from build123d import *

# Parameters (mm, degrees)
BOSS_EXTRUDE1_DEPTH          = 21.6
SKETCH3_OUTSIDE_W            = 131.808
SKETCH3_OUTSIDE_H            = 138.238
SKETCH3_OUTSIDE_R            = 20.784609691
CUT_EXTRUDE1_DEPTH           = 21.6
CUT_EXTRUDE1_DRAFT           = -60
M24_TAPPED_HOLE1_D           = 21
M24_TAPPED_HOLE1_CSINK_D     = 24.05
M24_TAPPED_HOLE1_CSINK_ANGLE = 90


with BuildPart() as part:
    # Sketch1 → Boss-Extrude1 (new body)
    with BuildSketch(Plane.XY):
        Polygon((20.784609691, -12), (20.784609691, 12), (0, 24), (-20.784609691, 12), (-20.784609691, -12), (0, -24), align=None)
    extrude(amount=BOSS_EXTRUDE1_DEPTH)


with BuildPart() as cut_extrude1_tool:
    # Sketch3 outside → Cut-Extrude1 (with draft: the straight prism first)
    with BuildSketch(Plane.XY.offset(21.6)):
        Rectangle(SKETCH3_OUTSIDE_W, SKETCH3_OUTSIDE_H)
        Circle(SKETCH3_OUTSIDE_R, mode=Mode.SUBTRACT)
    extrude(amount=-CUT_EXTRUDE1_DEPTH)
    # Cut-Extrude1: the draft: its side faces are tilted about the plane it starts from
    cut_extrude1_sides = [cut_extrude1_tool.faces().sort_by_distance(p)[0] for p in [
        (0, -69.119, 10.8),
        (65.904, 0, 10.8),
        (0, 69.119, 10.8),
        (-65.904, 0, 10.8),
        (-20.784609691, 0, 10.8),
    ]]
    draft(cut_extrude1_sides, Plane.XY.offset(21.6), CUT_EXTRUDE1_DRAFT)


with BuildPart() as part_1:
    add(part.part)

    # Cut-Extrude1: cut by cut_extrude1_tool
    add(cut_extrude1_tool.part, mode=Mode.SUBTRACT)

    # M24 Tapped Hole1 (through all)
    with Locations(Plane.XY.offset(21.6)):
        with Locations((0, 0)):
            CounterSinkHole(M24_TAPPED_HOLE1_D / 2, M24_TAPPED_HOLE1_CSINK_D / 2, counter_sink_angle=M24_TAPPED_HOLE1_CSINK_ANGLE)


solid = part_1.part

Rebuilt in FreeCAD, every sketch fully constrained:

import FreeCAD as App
import Part
import Sketcher
from FreeCAD import Vector
Q = App.Units.Quantity


def faces_at(feature, points):
    """Names of the faces that lie closest to the given points."""
    faces = feature.Shape.Faces
    near = lambda p: min(range(len(faces)), key=lambda i: faces[i].distToShape(Part.Vertex(*p))[0])
    return sorted({f"Face{near(p) + 1}" for p in points})

doc = App.newDocument("Part")
params = doc.addObject("Spreadsheet::Sheet", "Params")
for row, (alias, value) in enumerate([
    ("sketch1_height", "24 mm"),
    ("sketch1_length", "24 mm"),
    ("pad1_length", "21.6 mm"),
    ("pad2_length", "21.6 mm"),
    ("draft_angle", "60 deg"),
    ("sketch3_diameter", "21 mm"),
    ("hole_diameter", "21 mm"),
    ("hole_csink_diameter", "24.05 mm"),
], start=1):
    params.set(f"A{row}", alias)
    params.set(f"B{row}", "=" + value)
    params.setAlias(f"B{row}", alias)

body = doc.addObject("PartDesign::Body", "Body")

# Sketch on XY plane
sketch1 = doc.addObject("Sketcher::SketchObject", "Sketch")
body.addObject(sketch1)
sketch1.AttachmentSupport = (doc.XY_Plane, [""])
sketch1.MapMode = "FlatFace"
sketch1.addGeometry([
    Part.LineSegment(Vector(21, -12, 0), Vector(21, 12, 0)),  # 0
    Part.LineSegment(Vector(21, 12, 0), Vector(0, 24, 0)),  # 1
    Part.LineSegment(Vector(0, 24, 0), Vector(-21, 12, 0)),  # 2
    Part.LineSegment(Vector(-21, 12, 0), Vector(-21, -12, 0)),  # 3
    Part.LineSegment(Vector(-21, -12, 0), Vector(0, -24, 0)),  # 4
    Part.LineSegment(Vector(0, -24, 0), Vector(21, -12, 0)),  # 5
], False)
sketch1.addConstraint([
    Sketcher.Constraint("Coincident", 0, 2, 1, 1),
    Sketcher.Constraint("Coincident", 1, 2, 2, 1),
    Sketcher.Constraint("Coincident", 2, 2, 3, 1),
    Sketcher.Constraint("Coincident", 3, 2, 4, 1),
    Sketcher.Constraint("Coincident", 4, 2, 5, 1),
    Sketcher.Constraint("Coincident", 5, 2, 0, 1),
    Sketcher.Constraint("Vertical", 0),
    Sketcher.Constraint("Vertical", 3),
    Sketcher.Constraint("Symmetric", 0, 2, 3, 2, -1, 1),
    Sketcher.Constraint("Symmetric", 1, 2, 4, 2, -1, 1),
    Sketcher.Constraint("PointOnObject", 1, 2, -2),
    Sketcher.Constraint("Parallel", 2, 5),
    Sketcher.Constraint("Horizontal", 0, 2, 2, 2),
    Sketcher.Constraint("DistanceY", 0, 1, 0, 2, 24.0),
    Sketcher.Constraint("Angle", 1, Q("150 deg")),
    Sketcher.Constraint("Distance", 1, 24.0),
])
sketch1.setExpression("Constraints[13]", "Params.sketch1_height")
sketch1.setExpression("Constraints[15]", "Params.sketch1_length")
pad1 = doc.addObject("PartDesign::Pad", "Pad")
body.addObject(pad1)
pad1.Profile = sketch1
pad1.setExpression("Length", "Params.pad1_length")
body2 = doc.addObject("PartDesign::Body", "Body001")

# Sketch on XY plane
sketch2 = doc.addObject("Sketcher::SketchObject", "Sketch001")
body2.addObject(sketch2)
sketch2.AttachmentSupport = (doc.getObject("XY_Plane001"), [""])
sketch2.MapMode = "FlatFace"
sketch2.AttachmentOffset = App.Placement(Vector(0, 0, 21.6), App.Rotation())
sketch2.addGeometry([
    Part.LineSegment(Vector(-66, 69, 0), Vector(-66, -69, 0)),  # 0
    Part.LineSegment(Vector(-66, -69, 0), Vector(66, -69, 0)),  # 1
    Part.LineSegment(Vector(66, -69, 0), Vector(66, 69, 0)),  # 2
    Part.LineSegment(Vector(66, 69, 0), Vector(-66, 69, 0)),  # 3
    Part.Circle(Vector(0, 0, 0), Vector(0, 0, 1), 21),  # 4
], False)
sketch2.addConstraint([
    Sketcher.Constraint("Coincident", 0, 2, 1, 1),
    Sketcher.Constraint("Coincident", 1, 2, 2, 1),
    Sketcher.Constraint("Coincident", 2, 2, 3, 1),
    Sketcher.Constraint("Coincident", 3, 2, 0, 1),
    Sketcher.Constraint("Vertical", 0),
    Sketcher.Constraint("Horizontal", 1),
    Sketcher.Constraint("Vertical", 2),
    Sketcher.Constraint("Horizontal", 3),
    Sketcher.Constraint("Coincident", 4, 3, -1, 1),
    Sketcher.Constraint("Symmetric", 0, 2, 2, 2, -1, 1),
    Sketcher.Constraint("Diameter", 4, 41.569219),
    Sketcher.Constraint("DistanceX", 1, 1, 1, 2, 131.808),
    Sketcher.Constraint("DistanceY", 0, 2, 0, 1, 138.238),
])
pad2 = doc.addObject("PartDesign::Pad", "Pad001")
body2.addObject(pad2)
pad2.Profile = sketch2
pad2.setExpression("Length", "Params.pad2_length")
pad2.Reversed = True
doc.recompute()

datumplane = doc.addObject("PartDesign::Plane", "DatumPlane")
body2.addObject(datumplane)
datumplane.AttachmentSupport = (doc.getObject("XY_Plane001"), [""])
datumplane.MapMode = "FlatFace"
datumplane.AttachmentOffset = App.Placement(Vector(0, 0, 21.6), App.Rotation())
draft = doc.addObject("PartDesign::Draft", "Draft")
body2.addObject(draft)
draft.Base = (pad2, faces_at(pad2, [
    (0, -69.119, 10.8),
    (65.904, 0, 10.8),
    (0, 69.119, 10.8),
    (-65.904, 0, 10.8),
    (-20.785, 0, 10.8),
]))
draft.NeutralPlane = (datumplane, [""])
draft.setExpression("Angle", "Params.draft_angle")
draft.Reversed = True
doc.recompute()

boolean = doc.addObject("PartDesign::Boolean", "Boolean")
body.addObject(boolean)
boolean.Type = "Cut"
boolean.addObjects([body2])

# Sketch on XY plane
sketch3 = doc.addObject("Sketcher::SketchObject", "Sketch002")
body.addObject(sketch3)
sketch3.AttachmentSupport = (doc.XY_Plane, [""])
sketch3.MapMode = "FlatFace"
sketch3.AttachmentOffset = App.Placement(Vector(0, 0, 21.6), App.Rotation())
sketch3.addGeometry(Part.Circle(Vector(0, 0, 0), Vector(0, 0, 1), 10), False)
sketch3.addConstraint([
    Sketcher.Constraint("Coincident", 0, 3, -1, 1),
    Sketcher.Constraint("Diameter", 0, 21.0),
])
sketch3.setExpression("Constraints[1]", "Params.sketch3_diameter")
doc.recompute()
hole = doc.addObject("PartDesign::Hole", "Hole")
body.addObject(hole)
hole.Profile = sketch3
hole.ThreadType = "None"
hole.setExpression("Diameter", "Params.hole_diameter")
hole.DepthType = "ThroughAll"
hole.HoleCutType = "Countersink"
hole.setExpression("HoleCutDiameter", "Params.hole_csink_diameter")
hole.HoleCutCountersinkAngle = 90

doc.recompute()
